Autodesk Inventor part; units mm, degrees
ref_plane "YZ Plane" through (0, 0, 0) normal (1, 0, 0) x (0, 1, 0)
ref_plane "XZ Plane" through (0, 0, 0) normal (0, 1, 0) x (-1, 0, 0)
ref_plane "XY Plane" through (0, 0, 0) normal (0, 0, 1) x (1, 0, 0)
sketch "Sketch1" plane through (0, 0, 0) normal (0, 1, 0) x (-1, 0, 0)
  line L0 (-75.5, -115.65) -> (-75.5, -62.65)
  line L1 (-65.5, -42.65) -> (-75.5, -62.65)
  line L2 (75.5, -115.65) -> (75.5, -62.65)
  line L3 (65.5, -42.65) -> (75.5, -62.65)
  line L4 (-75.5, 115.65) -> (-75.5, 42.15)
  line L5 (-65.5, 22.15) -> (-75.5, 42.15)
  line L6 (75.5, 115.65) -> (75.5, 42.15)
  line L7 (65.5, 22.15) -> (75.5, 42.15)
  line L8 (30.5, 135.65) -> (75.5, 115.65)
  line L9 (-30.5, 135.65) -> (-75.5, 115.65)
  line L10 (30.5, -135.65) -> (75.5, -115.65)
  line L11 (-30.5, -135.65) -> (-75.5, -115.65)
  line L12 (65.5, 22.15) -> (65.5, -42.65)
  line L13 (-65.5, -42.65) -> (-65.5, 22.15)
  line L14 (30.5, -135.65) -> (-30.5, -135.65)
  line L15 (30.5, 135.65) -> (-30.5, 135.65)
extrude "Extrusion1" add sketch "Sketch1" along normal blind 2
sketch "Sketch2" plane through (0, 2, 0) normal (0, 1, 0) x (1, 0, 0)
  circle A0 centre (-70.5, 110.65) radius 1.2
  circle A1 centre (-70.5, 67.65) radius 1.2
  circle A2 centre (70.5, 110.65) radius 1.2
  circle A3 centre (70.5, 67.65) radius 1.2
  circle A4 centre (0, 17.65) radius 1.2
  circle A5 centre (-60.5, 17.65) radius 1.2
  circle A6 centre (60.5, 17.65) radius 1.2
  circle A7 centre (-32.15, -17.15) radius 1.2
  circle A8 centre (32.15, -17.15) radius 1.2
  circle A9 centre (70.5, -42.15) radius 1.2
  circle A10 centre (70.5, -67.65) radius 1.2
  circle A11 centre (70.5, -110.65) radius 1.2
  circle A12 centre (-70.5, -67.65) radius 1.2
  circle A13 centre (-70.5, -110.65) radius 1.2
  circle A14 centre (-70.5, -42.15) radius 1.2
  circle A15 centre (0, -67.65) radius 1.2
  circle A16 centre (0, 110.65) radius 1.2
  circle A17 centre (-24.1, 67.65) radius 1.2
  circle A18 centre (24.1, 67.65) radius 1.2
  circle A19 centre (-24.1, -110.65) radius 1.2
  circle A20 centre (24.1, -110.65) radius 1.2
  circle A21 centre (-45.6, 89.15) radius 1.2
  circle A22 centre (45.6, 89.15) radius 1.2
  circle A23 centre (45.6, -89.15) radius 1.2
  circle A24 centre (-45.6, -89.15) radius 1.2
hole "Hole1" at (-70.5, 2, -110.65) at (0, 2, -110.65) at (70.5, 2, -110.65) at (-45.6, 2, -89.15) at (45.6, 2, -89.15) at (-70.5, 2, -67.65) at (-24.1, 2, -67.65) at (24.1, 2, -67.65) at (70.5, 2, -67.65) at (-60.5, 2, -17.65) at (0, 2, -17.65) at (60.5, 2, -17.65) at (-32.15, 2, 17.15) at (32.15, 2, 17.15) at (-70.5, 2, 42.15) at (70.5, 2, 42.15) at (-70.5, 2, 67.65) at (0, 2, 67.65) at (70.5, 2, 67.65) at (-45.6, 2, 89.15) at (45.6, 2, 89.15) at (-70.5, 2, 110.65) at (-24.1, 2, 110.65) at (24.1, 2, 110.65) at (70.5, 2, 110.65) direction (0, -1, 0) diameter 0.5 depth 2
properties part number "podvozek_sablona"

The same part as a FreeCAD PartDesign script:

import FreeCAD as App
import Part
import Sketcher

doc = App.newDocument("Part")
body = doc.addObject("PartDesign::Body", "Body")

# Sketch on XZ plane
sketch1 = doc.addObject("Sketcher::SketchObject", "Sketch")
body.addObject(sketch1)
sketch1.AttachmentSupport = (doc.XZ_Plane, [""])
sketch1.MapMode = "FlatFace"
sketch1.addGeometry([
    Part.LineSegment(App.Vector(76, -63, 0), App.Vector(76, -116, 0)),  # 0
    Part.LineSegment(App.Vector(76, -116, 0), App.Vector(30, -136, 0)),  # 1
    Part.LineSegment(App.Vector(30, -136, 0), App.Vector(-30, -136, 0)),  # 2
    Part.LineSegment(App.Vector(-30, -136, 0), App.Vector(-76, -116, 0)),  # 3
    Part.LineSegment(App.Vector(-76, -116, 0), App.Vector(-76, -63, 0)),  # 4
    Part.LineSegment(App.Vector(-76, -63, 0), App.Vector(-66, -43, 0)),  # 5
    Part.LineSegment(App.Vector(-66, -43, 0), App.Vector(-66, 22, 0)),  # 6
    Part.LineSegment(App.Vector(-66, 22, 0), App.Vector(-76, 42, 0)),  # 7
    Part.LineSegment(App.Vector(-76, 42, 0), App.Vector(-76, 116, 0)),  # 8
    Part.LineSegment(App.Vector(-76, 116, 0), App.Vector(-30, 136, 0)),  # 9
    Part.LineSegment(App.Vector(-30, 136, 0), App.Vector(30, 136, 0)),  # 10
    Part.LineSegment(App.Vector(30, 136, 0), App.Vector(76, 116, 0)),  # 11
    Part.LineSegment(App.Vector(76, 116, 0), App.Vector(76, 42, 0)),  # 12
    Part.LineSegment(App.Vector(76, 42, 0), App.Vector(66, 22, 0)),  # 13
    Part.LineSegment(App.Vector(66, 22, 0), App.Vector(66, -43, 0)),  # 14
    Part.LineSegment(App.Vector(66, -43, 0), App.Vector(76, -63, 0)),  # 15
], False)
sketch1.addConstraint([
    Sketcher.Constraint("Coincident", 0, 2, 1, 1),
    Sketcher.Constraint("Coincident", 1, 2, 2, 1),
    Sketcher.Constraint("Coincident", 2, 2, 3, 1),
    Sketcher.Constraint("Coincident", 3, 2, 4, 1),
    Sketcher.Constraint("Coincident", 4, 2, 5, 1),
    Sketcher.Constraint("Coincident", 5, 2, 6, 1),
    Sketcher.Constraint("Coincident", 6, 2, 7, 1),
    Sketcher.Constraint("Coincident", 7, 2, 8, 1),
    Sketcher.Constraint("Coincident", 8, 2, 9, 1),
    Sketcher.Constraint("Coincident", 9, 2, 10, 1),
    Sketcher.Constraint("Coincident", 10, 2, 11, 1),
    Sketcher.Constraint("Coincident", 11, 2, 12, 1),
    Sketcher.Constraint("Coincident", 12, 2, 13, 1),
    Sketcher.Constraint("Coincident", 13, 2, 14, 1),
    Sketcher.Constraint("Coincident", 14, 2, 15, 1),
    Sketcher.Constraint("Coincident", 15, 2, 0, 1),
    Sketcher.Constraint("Vertical", 0),
    Sketcher.Constraint("Horizontal", 2),
    Sketcher.Constraint("Vertical", 4),
    Sketcher.Constraint("Vertical", 6),
    Sketcher.Constraint("Vertical", 8),
    Sketcher.Constraint("Horizontal", 10),
    Sketcher.Constraint("Vertical", 12),
    Sketcher.Constraint("Vertical", 14),
    Sketcher.Constraint("Symmetric", 0, 2, 8, 2, -1, 1),
    Sketcher.Constraint("Symmetric", 1, 2, 9, 2, -1, 1),
    Sketcher.Constraint("Symmetric", 3, 2, 11, 2, -1, 1),
    Sketcher.Constraint("Symmetric", 0, 2, 3, 2, -2),
    Sketcher.Constraint("Symmetric", 6, 2, 13, 2, -2),
    Sketcher.Constraint("Parallel", 3, 11),
    Sketcher.Constraint("Parallel", 5, 13),
    Sketcher.Constraint("Parallel", 7, 15),
    Sketcher.Constraint("Horizontal", 7, 2, 12, 2),
    Sketcher.Constraint("Horizontal", 5, 2, 14, 2),
    Sketcher.Constraint("Vertical", 2, 2, 9, 2),
    Sketcher.Constraint("DistanceX", 2, 2, 2, 1, 61.0),
    Sketcher.Constraint("DistanceY", 0, 2, 0, 1, 53.0),
    Sketcher.Constraint("DistanceY", 6, 1, 6, 2, 64.8),
    Sketcher.Constraint("DistanceY", 8, 1, 8, 2, 73.5),
    Sketcher.Constraint("DistanceX", 1, 2, 0, 2, 45.0),
    Sketcher.Constraint("DistanceY", 1, 2, 0, 2, 20.0),
    Sketcher.Constraint("DistanceX", 4, 2, 5, 2, 10.0),
    Sketcher.Constraint("DistanceY", 4, 2, 5, 2, 20.0),
])
pad1 = doc.addObject("PartDesign::Pad", "Pad")
body.addObject(pad1)
pad1.Profile = sketch1
pad1.Length = 2
pad1.Reversed = True

# Sketch on XZ plane
sketch2 = doc.addObject("Sketcher::SketchObject", "Sketch001")
body.addObject(sketch2)
sketch2.AttachmentSupport = (doc.XZ_Plane, [""])
sketch2.MapMode = "FlatFace"
sketch2.AttachmentOffset = App.Placement(App.Vector(0, 0, -2), App.Rotation())
sketch2.addGeometry([
    Part.Circle(App.Vector(-70.5, -110.65, 0), App.Vector(0, 0, 1), 0.25),  # 0
    Part.Circle(App.Vector(0, -110.65, 0), App.Vector(0, 0, 1), 0.25),  # 1
    Part.Circle(App.Vector(70.5, -110.65, 0), App.Vector(0, 0, 1), 0.25),  # 2
    Part.Circle(App.Vector(-45.6, -89.15, 0), App.Vector(0, 0, 1), 0.25),  # 3
    Part.Circle(App.Vector(45.6, -89.15, 0), App.Vector(0, 0, 1), 0.25),  # 4
    Part.Circle(App.Vector(-70.5, -67.65, 0), App.Vector(0, 0, 1), 0.25),  # 5
    Part.Circle(App.Vector(-24.1, -67.65, 0), App.Vector(0, 0, 1), 0.25),  # 6
    Part.Circle(App.Vector(24.1, -67.65, 0), App.Vector(0, 0, 1), 0.25),  # 7
    Part.Circle(App.Vector(70.5, -67.65, 0), App.Vector(0, 0, 1), 0.25),  # 8
    Part.Circle(App.Vector(-60.5, -17.65, 0), App.Vector(0, 0, 1), 0.25),  # 9
    Part.Circle(App.Vector(0, -17.65, 0), App.Vector(0, 0, 1), 0.25),  # 10
    Part.Circle(App.Vector(60.5, -17.65, 0), App.Vector(0, 0, 1), 0.25),  # 11
    Part.Circle(App.Vector(-32.15, 17.15, 0), App.Vector(0, 0, 1), 0.25),  # 12
    Part.Circle(App.Vector(32.15, 17.15, 0), App.Vector(0, 0, 1), 0.25),  # 13
    Part.Circle(App.Vector(-70.5, 42.15, 0), App.Vector(0, 0, 1), 0.25),  # 14
    Part.Circle(App.Vector(70.5, 42.15, 0), App.Vector(0, 0, 1), 0.25),  # 15
    Part.Circle(App.Vector(-70.5, 67.65, 0), App.Vector(0, 0, 1), 0.25),  # 16
    Part.Circle(App.Vector(0, 67.65, 0), App.Vector(0, 0, 1), 0.25),  # 17
    Part.Circle(App.Vector(70.5, 67.65, 0), App.Vector(0, 0, 1), 0.25),  # 18
    Part.Circle(App.Vector(-45.6, 89.15, 0), App.Vector(0, 0, 1), 0.25),  # 19
    Part.Circle(App.Vector(45.6, 89.15, 0), App.Vector(0, 0, 1), 0.25),  # 20
    Part.Circle(App.Vector(-70.5, 110.65, 0), App.Vector(0, 0, 1), 0.25),  # 21
    Part.Circle(App.Vector(-24.1, 110.65, 0), App.Vector(0, 0, 1), 0.25),  # 22
    Part.Circle(App.Vector(24.1, 110.65, 0), App.Vector(0, 0, 1), 0.25),  # 23
    Part.Circle(App.Vector(70.5, 110.65, 0), App.Vector(0, 0, 1), 0.25),  # 24
], False)
sketch2.addConstraint([
    Sketcher.Constraint("Equal", 0, 1),
    Sketcher.Constraint("Equal", 1, 2),
    Sketcher.Constraint("Equal", 2, 3),
    Sketcher.Constraint("Equal", 3, 4),
    Sketcher.Constraint("Equal", 4, 5),
    Sketcher.Constraint("Equal", 5, 6),
    Sketcher.Constraint("Equal", 6, 7),
    Sketcher.Constraint("Equal", 7, 8),
    Sketcher.Constraint("Equal", 8, 9),
    Sketcher.Constraint("Equal", 9, 10),
    Sketcher.Constraint("Equal", 10, 11),
    Sketcher.Constraint("Equal", 11, 12),
    Sketcher.Constraint("Equal", 12, 13),
    Sketcher.Constraint("Equal", 13, 14),
    Sketcher.Constraint("Equal", 14, 15),
    Sketcher.Constraint("Equal", 15, 16),
    Sketcher.Constraint("Equal", 16, 17),
    Sketcher.Constraint("Equal", 17, 18),
    Sketcher.Constraint("Equal", 18, 19),
    Sketcher.Constraint("Equal", 19, 20),
    Sketcher.Constraint("Equal", 20, 21),
    Sketcher.Constraint("Equal", 21, 22),
    Sketcher.Constraint("Equal", 22, 23),
    Sketcher.Constraint("Equal", 23, 24),
    Sketcher.Constraint("Symmetric", 8, 3, 16, 3, -1, 1),
    Sketcher.Constraint("Symmetric", 5, 3, 18, 3, -1, 1),
    Sketcher.Constraint("Symmetric", 4, 3, 19, 3, -1, 1),
    Sketcher.Constraint("Symmetric", 3, 3, 20, 3, -1, 1),
    Sketcher.Constraint("Symmetric", 2, 3, 21, 3, -1, 1),
    Sketcher.Constraint("Symmetric", 0, 3, 24, 3, -1, 1),
    Sketcher.Constraint("Symmetric", 0, 3, 2, 3, -2),
    Sketcher.Constraint("Symmetric", 3, 3, 4, 3, -2),
    Sketcher.Constraint("Symmetric", 6, 3, 7, 3, -2),
    Sketcher.Constraint("Symmetric", 5, 3, 8, 3, -2),
    Sketcher.Constraint("Symmetric", 9, 3, 11, 3, -2),
    Sketcher.Constraint("Symmetric", 12, 3, 13, 3, -2),
    Sketcher.Constraint("Symmetric", 14, 3, 15, 3, -2),
    Sketcher.Constraint("Symmetric", 22, 3, 23, 3, -2),
    Sketcher.Constraint("PointOnObject", 1, 3, -2),
    Sketcher.Constraint("PointOnObject", 10, 3, -2),
    Sketcher.Constraint("PointOnObject", 17, 3, -2),
    Sketcher.Constraint("Horizontal", 0, 3, 1, 3),
    Sketcher.Constraint("Horizontal", 5, 3, 6, 3),
    Sketcher.Constraint("Horizontal", 9, 3, 10, 3),
    Sketcher.Constraint("Horizontal", 16, 3, 17, 3),
    Sketcher.Constraint("Horizontal", 21, 3, 22, 3),
    Sketcher.Constraint("Vertical", 0, 3, 5, 3),
    Sketcher.Constraint("Vertical", 5, 3, 14, 3),
    Sketcher.Constraint("Vertical", 6, 3, 22, 3),
    Sketcher.Constraint("Diameter", 0, 0.5),
    Sketcher.Constraint("DistanceX", 0, 3, 2, 3, 141.0),
    Sketcher.Constraint("DistanceY", 0, 3, 5, 3, 43.0),
    Sketcher.Constraint("DistanceX", 5, 3, 9, 3, 10.0),
    Sketcher.Constraint("DistanceY", 5, 3, 9, 3, 50.0),
    Sketcher.Constraint("DistanceY", 12, 3, 14, 3, 25.0),
    Sketcher.Constraint("DistanceY", 14, 3, 19, 3, 47.0),
    Sketcher.Constraint("DistanceX", 3, 3, -1, 1, 45.6),
    Sketcher.Constraint("DistanceX", 6, 3, -1, 1, 24.1),
    Sketcher.Constraint("DistanceY", 0, 3, 3, 3, 21.5),
    Sketcher.Constraint("DistanceY", 9, 3, 12, 3, 34.8),
    Sketcher.Constraint("DistanceX", 12, 3, 13, 3, 64.3),
])
doc.recompute()
hole = doc.addObject("PartDesign::Hole", "Hole")
body.addObject(hole)
hole.Profile = sketch2
hole.ThreadType = "None"
hole.Diameter = 0.5
hole.DepthType = "Dimension"
hole.Depth = 2
hole.DrillPoint = "Flat"
hole.Reversed = True

doc.recompute()
